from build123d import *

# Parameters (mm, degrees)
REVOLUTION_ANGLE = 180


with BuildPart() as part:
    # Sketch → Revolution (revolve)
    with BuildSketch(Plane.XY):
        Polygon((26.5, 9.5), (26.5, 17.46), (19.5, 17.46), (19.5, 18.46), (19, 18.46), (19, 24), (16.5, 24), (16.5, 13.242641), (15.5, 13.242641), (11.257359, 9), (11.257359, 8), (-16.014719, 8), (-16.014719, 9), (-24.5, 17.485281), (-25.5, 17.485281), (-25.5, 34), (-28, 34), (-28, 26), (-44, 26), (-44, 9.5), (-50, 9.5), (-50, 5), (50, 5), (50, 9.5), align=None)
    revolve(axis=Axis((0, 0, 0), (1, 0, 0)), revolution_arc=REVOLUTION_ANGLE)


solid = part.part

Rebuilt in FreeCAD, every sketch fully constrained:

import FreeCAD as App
import Part
import Sketcher
from FreeCAD import Vector
Q = App.Units.Quantity


def add_polygon(sketch, points):
    """Adds a closed chain of lines whose ends are joined by coincident constraints."""
    first, n = sketch.GeometryCount, len(points)
    for a, b in zip(points, points[1:] + points[:1]):
        sketch.addGeometry(Part.LineSegment(App.Vector(*a, 0), App.Vector(*b, 0)), False)
    for i in range(n):
        sketch.addConstraint(Sketcher.Constraint("Coincident", first + i, 2, first + (i + 1) % n, 1))

doc = App.newDocument("Part")
body = doc.addObject("PartDesign::Body", "Body")

sketch1 = body.newObject("Sketcher::SketchObject", "Sketch")
sketch1.AttachmentSupport = (doc.getObject("XY_Plane"), [""])
sketch1.MapMode = "FlatFace"
add_polygon(sketch1, [(26.5, 9.5), (26.5, 17.5), (19.5, 17.5), (19.5, 18.5), (19, 18.5), (19, 24), (16.5, 24), (16.5, 13.2), (15.5, 13.2), (11.3, 9), (11.3, 8), (-16, 8), (-16, 9), (-24.5, 17.5), (-25.5, 17.5), (-25.5, 34), (-28, 34), (-28, 26), (-44, 26), (-44, 9.5), (-50, 9.5), (-50, 5), (50, 5), (50, 9.5)])
sketch1.addConstraint([
    Sketcher.Constraint("Vertical", 0),
    Sketcher.Constraint("Horizontal", 1),
    Sketcher.Constraint("Vertical", 2),
    Sketcher.Constraint("Horizontal", 3),
    Sketcher.Constraint("Vertical", 4),
    Sketcher.Constraint("Horizontal", 5),
    Sketcher.Constraint("Vertical", 6),
    Sketcher.Constraint("Horizontal", 7),
    Sketcher.Constraint("Vertical", 9),
    Sketcher.Constraint("Horizontal", 10),
    Sketcher.Constraint("Vertical", 11),
    Sketcher.Constraint("Horizontal", 13),
    Sketcher.Constraint("Vertical", 14),
    Sketcher.Constraint("Horizontal", 15),
    Sketcher.Constraint("Vertical", 16),
    Sketcher.Constraint("Horizontal", 17),
    Sketcher.Constraint("Vertical", 18),
    Sketcher.Constraint("Horizontal", 19),
    Sketcher.Constraint("Vertical", 20),
    Sketcher.Constraint("Horizontal", 21),
    Sketcher.Constraint("Vertical", 22),
    Sketcher.Constraint("Horizontal", 23),
    Sketcher.Constraint("Symmetric", 19, 2, 22, 2, -2),
    Sketcher.Constraint("Perpendicular", 8, 12),
    Sketcher.Constraint("Horizontal", 8, 2, 11, 2),
    Sketcher.Constraint("Equal", 7, 13),
    Sketcher.Constraint("Equal", 5, 15),
    Sketcher.Constraint("Equal", 13, 2),
    Sketcher.Constraint("Equal", 2, 9),
    Sketcher.Constraint("DistanceX", 1, 2, 1, 1, Q("7 mm")),
    Sketcher.Constraint("DistanceX", 7, 2, 7, 1, Q("1 mm")),
    Sketcher.Constraint("DistanceX", 17, 2, 17, 1, Q("16 mm")),
    Sketcher.Constraint("DistanceX", 19, 2, 19, 1, Q("6 mm")),
    Sketcher.Constraint("DistanceX", 21, 1, 21, 2, Q("100 mm")),
    Sketcher.Constraint("DistanceY", 16, 2, 16, 1, Q("8 mm")),
    Sketcher.Constraint("Angle", 8, Q("-135 deg")),
    Sketcher.Constraint("Distance", 8, Q("6 mm")),
    Sketcher.Constraint("Distance", 12, Q("11.999999 mm")),
    Sketcher.Constraint("DistanceX", 3, 2, 3, 1, Q("0.5 mm")),
    Sketcher.Constraint("DistanceX", 5, 2, 5, 1, Q("2.5 mm")),
    Sketcher.Constraint("DistanceX", 23, 2, 23, 1, Q("23.5 mm")),
    Sketcher.Constraint("DistanceY", 18, 2, 18, 1, Q("16.5 mm")),
    Sketcher.Constraint("DistanceY", 20, 2, 20, 1, Q("4.5 mm")),
    Sketcher.Constraint("DistanceY", -1, 1, 4, 2, Q("24 mm")),
    Sketcher.Constraint("DistanceY", -1, 1, 8, 2, Q("9 mm")),
    Sketcher.Constraint("DistanceY", -1, 1, 14, 2, Q("34 mm")),
    Sketcher.Constraint("DistanceY", 0, 1, 0, 2, Q("7.96 mm")),
])
revolution = body.newObject("PartDesign::Revolution", "Revolution")
revolution.Profile = sketch1
revolution.ReferenceAxis = (sketch1, ["H_Axis"])
revolution.Angle = 180

doc.recompute()
